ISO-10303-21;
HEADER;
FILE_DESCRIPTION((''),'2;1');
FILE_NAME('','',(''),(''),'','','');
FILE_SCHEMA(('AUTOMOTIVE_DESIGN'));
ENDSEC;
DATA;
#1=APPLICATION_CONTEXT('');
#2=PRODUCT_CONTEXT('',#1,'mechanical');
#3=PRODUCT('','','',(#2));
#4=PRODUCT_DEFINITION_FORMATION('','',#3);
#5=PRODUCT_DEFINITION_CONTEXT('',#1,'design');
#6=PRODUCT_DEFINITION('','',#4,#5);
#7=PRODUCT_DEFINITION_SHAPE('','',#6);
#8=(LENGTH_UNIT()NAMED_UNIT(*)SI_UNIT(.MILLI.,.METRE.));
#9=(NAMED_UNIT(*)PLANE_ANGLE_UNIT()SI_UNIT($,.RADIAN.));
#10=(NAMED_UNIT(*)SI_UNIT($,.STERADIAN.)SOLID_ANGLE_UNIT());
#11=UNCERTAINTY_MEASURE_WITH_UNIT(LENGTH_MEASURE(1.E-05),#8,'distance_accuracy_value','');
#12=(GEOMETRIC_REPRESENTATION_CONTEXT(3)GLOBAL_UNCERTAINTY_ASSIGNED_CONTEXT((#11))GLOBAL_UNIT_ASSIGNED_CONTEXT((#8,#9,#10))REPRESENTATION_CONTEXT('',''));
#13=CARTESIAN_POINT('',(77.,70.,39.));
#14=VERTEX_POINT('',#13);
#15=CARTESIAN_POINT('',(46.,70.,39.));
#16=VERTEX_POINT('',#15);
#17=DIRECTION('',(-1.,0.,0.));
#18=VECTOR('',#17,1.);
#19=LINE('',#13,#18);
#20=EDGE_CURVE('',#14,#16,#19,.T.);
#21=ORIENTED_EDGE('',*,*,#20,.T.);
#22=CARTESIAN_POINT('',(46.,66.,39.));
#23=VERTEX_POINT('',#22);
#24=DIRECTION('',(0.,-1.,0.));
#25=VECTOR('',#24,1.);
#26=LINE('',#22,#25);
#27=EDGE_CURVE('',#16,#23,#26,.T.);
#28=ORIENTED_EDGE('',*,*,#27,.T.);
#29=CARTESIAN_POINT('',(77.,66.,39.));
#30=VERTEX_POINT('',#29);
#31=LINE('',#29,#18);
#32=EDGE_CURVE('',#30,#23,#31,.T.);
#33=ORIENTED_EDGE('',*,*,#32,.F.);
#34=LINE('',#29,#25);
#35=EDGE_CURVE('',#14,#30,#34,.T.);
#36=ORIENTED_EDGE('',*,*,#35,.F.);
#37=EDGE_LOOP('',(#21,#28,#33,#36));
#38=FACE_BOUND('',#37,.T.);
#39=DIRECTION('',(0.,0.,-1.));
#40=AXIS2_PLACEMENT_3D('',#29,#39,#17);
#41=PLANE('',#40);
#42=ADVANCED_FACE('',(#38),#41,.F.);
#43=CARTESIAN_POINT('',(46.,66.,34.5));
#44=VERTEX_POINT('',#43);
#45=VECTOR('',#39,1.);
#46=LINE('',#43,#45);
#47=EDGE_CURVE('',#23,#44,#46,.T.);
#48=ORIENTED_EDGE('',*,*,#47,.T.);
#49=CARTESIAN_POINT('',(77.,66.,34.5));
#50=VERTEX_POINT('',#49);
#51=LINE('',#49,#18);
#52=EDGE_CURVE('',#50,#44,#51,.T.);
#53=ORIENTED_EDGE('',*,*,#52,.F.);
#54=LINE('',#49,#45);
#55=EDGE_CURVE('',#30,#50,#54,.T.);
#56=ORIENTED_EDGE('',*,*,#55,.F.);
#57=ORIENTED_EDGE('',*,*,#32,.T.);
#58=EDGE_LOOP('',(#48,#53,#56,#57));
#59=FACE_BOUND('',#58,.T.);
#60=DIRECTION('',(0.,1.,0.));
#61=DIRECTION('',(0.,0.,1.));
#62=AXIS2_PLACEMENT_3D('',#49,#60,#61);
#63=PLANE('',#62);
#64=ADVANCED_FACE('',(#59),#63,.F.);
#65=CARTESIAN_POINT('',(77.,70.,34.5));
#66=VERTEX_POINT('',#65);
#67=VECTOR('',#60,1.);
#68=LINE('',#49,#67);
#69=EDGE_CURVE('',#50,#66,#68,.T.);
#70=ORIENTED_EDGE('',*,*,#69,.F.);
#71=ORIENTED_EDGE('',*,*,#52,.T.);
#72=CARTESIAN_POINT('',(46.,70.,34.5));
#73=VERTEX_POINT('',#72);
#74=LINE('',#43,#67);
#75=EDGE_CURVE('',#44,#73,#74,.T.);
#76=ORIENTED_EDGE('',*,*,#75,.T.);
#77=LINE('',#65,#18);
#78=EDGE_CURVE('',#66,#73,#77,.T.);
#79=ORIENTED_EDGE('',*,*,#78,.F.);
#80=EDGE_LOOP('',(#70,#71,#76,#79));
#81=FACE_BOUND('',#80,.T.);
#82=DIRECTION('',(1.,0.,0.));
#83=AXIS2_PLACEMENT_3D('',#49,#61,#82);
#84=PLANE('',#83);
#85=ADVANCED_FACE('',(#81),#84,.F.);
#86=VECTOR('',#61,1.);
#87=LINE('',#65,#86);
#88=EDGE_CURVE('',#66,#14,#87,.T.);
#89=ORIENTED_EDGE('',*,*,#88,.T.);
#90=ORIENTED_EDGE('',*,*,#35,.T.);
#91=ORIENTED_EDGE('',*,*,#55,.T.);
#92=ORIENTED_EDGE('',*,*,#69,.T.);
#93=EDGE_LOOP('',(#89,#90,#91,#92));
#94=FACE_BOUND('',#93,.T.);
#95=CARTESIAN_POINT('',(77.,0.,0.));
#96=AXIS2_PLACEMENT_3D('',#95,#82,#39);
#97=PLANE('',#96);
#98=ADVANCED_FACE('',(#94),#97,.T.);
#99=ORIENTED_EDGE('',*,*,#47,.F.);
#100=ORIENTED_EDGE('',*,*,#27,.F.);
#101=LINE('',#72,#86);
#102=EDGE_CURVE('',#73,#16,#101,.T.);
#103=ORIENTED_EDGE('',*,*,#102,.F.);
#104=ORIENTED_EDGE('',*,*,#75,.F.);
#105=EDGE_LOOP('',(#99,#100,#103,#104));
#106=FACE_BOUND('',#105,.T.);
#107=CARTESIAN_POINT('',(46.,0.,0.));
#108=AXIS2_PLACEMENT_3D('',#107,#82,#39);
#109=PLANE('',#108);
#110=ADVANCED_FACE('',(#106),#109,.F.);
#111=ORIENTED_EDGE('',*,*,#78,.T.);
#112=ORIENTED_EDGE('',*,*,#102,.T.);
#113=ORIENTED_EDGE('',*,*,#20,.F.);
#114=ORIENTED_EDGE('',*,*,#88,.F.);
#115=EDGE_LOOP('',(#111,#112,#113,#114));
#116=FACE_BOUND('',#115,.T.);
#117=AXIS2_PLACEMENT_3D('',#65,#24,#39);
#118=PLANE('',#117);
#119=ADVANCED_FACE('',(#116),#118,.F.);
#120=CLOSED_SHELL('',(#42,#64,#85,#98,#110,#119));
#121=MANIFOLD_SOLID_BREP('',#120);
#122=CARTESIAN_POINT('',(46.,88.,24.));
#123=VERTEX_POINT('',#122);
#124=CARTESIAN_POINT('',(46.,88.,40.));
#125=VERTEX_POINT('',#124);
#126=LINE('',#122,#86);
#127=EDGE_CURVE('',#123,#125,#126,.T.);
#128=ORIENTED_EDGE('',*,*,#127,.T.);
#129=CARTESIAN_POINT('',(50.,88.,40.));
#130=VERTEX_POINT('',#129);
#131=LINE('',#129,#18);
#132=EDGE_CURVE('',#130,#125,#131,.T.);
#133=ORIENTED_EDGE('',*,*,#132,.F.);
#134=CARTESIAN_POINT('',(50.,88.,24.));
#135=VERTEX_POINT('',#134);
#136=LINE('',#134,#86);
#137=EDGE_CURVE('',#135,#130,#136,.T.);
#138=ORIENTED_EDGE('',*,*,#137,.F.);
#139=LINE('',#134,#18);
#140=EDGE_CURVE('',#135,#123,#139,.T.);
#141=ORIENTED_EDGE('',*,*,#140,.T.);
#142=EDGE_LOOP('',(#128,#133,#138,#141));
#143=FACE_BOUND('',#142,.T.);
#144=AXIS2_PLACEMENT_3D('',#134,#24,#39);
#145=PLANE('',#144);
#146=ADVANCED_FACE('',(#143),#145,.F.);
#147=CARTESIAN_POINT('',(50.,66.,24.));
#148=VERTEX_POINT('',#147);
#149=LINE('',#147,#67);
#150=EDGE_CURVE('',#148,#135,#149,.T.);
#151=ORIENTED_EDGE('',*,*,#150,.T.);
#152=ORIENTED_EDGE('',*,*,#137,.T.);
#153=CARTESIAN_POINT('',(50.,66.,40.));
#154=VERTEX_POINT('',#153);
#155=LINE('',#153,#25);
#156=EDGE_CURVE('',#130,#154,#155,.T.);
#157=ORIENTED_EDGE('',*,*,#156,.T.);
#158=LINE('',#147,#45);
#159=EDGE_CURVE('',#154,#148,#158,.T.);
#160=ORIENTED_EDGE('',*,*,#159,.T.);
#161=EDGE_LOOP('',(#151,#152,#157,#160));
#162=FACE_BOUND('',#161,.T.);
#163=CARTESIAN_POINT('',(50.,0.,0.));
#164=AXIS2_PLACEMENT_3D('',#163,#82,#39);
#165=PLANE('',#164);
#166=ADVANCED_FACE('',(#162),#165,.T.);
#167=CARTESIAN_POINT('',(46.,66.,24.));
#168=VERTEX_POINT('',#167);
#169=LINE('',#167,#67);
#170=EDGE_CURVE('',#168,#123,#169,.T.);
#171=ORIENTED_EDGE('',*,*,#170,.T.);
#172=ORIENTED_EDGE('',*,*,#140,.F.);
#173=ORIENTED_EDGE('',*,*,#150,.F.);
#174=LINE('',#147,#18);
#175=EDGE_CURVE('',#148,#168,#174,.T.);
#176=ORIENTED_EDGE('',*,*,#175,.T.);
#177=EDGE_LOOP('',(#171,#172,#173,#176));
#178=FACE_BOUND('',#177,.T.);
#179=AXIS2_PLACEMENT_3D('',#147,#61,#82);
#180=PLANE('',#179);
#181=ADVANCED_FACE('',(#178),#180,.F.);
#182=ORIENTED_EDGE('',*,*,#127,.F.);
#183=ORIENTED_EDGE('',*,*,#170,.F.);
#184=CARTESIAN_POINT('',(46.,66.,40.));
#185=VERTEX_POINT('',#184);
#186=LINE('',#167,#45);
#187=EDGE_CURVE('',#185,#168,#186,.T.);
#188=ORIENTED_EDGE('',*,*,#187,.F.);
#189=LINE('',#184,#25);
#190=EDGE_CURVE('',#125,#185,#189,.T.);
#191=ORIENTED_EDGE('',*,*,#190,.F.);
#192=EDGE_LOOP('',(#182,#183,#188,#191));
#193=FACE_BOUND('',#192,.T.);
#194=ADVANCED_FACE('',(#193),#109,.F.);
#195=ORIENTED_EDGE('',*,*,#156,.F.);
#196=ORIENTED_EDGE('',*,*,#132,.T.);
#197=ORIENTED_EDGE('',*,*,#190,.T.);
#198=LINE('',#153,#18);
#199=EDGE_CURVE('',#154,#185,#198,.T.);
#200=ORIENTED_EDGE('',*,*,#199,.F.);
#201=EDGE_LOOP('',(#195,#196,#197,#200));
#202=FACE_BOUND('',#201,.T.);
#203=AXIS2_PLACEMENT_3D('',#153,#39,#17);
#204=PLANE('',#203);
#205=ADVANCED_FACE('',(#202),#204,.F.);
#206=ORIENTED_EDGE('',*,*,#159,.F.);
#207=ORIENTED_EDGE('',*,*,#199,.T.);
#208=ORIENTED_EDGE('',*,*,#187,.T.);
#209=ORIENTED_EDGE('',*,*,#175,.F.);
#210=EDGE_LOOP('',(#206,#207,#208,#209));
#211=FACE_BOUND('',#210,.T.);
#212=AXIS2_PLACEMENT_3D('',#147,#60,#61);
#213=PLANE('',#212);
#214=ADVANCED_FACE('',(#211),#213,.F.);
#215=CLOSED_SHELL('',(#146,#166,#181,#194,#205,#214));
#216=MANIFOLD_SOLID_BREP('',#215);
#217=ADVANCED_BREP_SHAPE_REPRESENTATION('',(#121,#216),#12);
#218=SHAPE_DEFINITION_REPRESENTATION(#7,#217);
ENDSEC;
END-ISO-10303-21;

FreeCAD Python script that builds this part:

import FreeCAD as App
import Part
import Sketcher

V = App.Vector
Q = App.Units.Quantity

doc = App.newDocument("Part")
params = doc.addObject("Spreadsheet::Sheet", "Params")
for row, (alias, value) in enumerate([
    ("sketch1_width", "22 mm"),
    ("sketch1_height", "16 mm"),
    ("pad1_length", "4 mm"),
    ("sketch2_width", "4 mm"),
    ("sketch2_height", "4.5 mm"),
    ("pad2_length", "31 mm"),
], start=1):
    params.set(f"A{row}", alias)
    params.set(f"B{row}", "=" + value)
    params.setAlias(f"B{row}", alias)

body = doc.addObject("PartDesign::Body", "Body")

# Sketch on YZ plane
sketch1 = body.newObject("Sketcher::SketchObject", "Sketch")
sketch1.AttachmentSupport = (doc.getObject("YZ_Plane"), [""])
sketch1.MapMode = "FlatFace"
sketch1.AttachmentOffset = App.Placement(V(0, 0, 46), App.Rotation())
sketch1.addGeometry(Part.LineSegment(V(88, 40, 0), V(66, 40, 0)), False)
sketch1.addGeometry(Part.LineSegment(V(66, 40, 0), V(66, 24, 0)), False)
sketch1.addGeometry(Part.LineSegment(V(66, 24, 0), V(88, 24, 0)), False)
sketch1.addGeometry(Part.LineSegment(V(88, 24, 0), V(88, 40, 0)), False)
sketch1.addConstraint(Sketcher.Constraint("Coincident", 0, 2, 1, 1))
sketch1.addConstraint(Sketcher.Constraint("Coincident", 1, 2, 2, 1))
sketch1.addConstraint(Sketcher.Constraint("Coincident", 2, 2, 3, 1))
sketch1.addConstraint(Sketcher.Constraint("Coincident", 3, 2, 0, 1))
sketch1.addConstraint(Sketcher.Constraint("Horizontal", 0))
sketch1.addConstraint(Sketcher.Constraint("Vertical", 1))
sketch1.addConstraint(Sketcher.Constraint("Horizontal", 2))
sketch1.addConstraint(Sketcher.Constraint("Vertical", 3))
sketch1.addConstraint(Sketcher.Constraint("DistanceX", 0, 2, 0, 1, Q("22 mm")))
sketch1.addConstraint(Sketcher.Constraint("DistanceY", 1, 2, 1, 1, Q("16 mm")))
sketch1.addConstraint(Sketcher.Constraint("DistanceX", -1, 1, 0, 2, Q("66 mm")))
sketch1.addConstraint(Sketcher.Constraint("DistanceY", -1, 1, 0, 2, Q("40 mm")))
sketch1.setExpression("Constraints[8]", "Params.sketch1_width")
sketch1.setExpression("Constraints[9]", "Params.sketch1_height")
pad1 = body.newObject("PartDesign::Pad", "Pad")
pad1.Profile = sketch1
pad1.setExpression("Length", "Params.pad1_length")
body2 = doc.addObject("PartDesign::Body", "Body001")

# Sketch on YZ plane
sketch2 = body2.newObject("Sketcher::SketchObject", "Sketch001")
sketch2.AttachmentSupport = (doc.getObject("YZ_Plane001"), [""])
sketch2.MapMode = "FlatFace"
sketch2.AttachmentOffset = App.Placement(V(0, 0, 46), App.Rotation())
sketch2.addGeometry(Part.LineSegment(V(70, 39, 0), V(66, 39, 0)), False)
sketch2.addGeometry(Part.LineSegment(V(66, 39, 0), V(66, 34.5, 0)), False)
sketch2.addGeometry(Part.LineSegment(V(66, 34.5, 0), V(70, 34.5, 0)), False)
sketch2.addGeometry(Part.LineSegment(V(70, 34.5, 0), V(70, 39, 0)), False)
sketch2.addConstraint(Sketcher.Constraint("Coincident", 0, 2, 1, 1))
sketch2.addConstraint(Sketcher.Constraint("Coincident", 1, 2, 2, 1))
sketch2.addConstraint(Sketcher.Constraint("Coincident", 2, 2, 3, 1))
sketch2.addConstraint(Sketcher.Constraint("Coincident", 3, 2, 0, 1))
sketch2.addConstraint(Sketcher.Constraint("Horizontal", 0))
sketch2.addConstraint(Sketcher.Constraint("Vertical", 1))
sketch2.addConstraint(Sketcher.Constraint("Horizontal", 2))
sketch2.addConstraint(Sketcher.Constraint("Vertical", 3))
sketch2.addConstraint(Sketcher.Constraint("DistanceX", 0, 2, 0, 1, Q("4 mm")))
sketch2.addConstraint(Sketcher.Constraint("DistanceY", 1, 2, 1, 1, Q("4.5 mm")))
sketch2.addConstraint(Sketcher.Constraint("DistanceX", -1, 1, 0, 2, Q("66 mm")))
sketch2.addConstraint(Sketcher.Constraint("DistanceY", -1, 1, 0, 2, Q("39 mm")))
sketch2.setExpression("Constraints[8]", "Params.sketch2_width")
sketch2.setExpression("Constraints[9]", "Params.sketch2_height")
pad2 = body2.newObject("PartDesign::Pad", "Pad001")
pad2.Profile = sketch2
pad2.setExpression("Length", "Params.pad2_length")

doc.recompute()
